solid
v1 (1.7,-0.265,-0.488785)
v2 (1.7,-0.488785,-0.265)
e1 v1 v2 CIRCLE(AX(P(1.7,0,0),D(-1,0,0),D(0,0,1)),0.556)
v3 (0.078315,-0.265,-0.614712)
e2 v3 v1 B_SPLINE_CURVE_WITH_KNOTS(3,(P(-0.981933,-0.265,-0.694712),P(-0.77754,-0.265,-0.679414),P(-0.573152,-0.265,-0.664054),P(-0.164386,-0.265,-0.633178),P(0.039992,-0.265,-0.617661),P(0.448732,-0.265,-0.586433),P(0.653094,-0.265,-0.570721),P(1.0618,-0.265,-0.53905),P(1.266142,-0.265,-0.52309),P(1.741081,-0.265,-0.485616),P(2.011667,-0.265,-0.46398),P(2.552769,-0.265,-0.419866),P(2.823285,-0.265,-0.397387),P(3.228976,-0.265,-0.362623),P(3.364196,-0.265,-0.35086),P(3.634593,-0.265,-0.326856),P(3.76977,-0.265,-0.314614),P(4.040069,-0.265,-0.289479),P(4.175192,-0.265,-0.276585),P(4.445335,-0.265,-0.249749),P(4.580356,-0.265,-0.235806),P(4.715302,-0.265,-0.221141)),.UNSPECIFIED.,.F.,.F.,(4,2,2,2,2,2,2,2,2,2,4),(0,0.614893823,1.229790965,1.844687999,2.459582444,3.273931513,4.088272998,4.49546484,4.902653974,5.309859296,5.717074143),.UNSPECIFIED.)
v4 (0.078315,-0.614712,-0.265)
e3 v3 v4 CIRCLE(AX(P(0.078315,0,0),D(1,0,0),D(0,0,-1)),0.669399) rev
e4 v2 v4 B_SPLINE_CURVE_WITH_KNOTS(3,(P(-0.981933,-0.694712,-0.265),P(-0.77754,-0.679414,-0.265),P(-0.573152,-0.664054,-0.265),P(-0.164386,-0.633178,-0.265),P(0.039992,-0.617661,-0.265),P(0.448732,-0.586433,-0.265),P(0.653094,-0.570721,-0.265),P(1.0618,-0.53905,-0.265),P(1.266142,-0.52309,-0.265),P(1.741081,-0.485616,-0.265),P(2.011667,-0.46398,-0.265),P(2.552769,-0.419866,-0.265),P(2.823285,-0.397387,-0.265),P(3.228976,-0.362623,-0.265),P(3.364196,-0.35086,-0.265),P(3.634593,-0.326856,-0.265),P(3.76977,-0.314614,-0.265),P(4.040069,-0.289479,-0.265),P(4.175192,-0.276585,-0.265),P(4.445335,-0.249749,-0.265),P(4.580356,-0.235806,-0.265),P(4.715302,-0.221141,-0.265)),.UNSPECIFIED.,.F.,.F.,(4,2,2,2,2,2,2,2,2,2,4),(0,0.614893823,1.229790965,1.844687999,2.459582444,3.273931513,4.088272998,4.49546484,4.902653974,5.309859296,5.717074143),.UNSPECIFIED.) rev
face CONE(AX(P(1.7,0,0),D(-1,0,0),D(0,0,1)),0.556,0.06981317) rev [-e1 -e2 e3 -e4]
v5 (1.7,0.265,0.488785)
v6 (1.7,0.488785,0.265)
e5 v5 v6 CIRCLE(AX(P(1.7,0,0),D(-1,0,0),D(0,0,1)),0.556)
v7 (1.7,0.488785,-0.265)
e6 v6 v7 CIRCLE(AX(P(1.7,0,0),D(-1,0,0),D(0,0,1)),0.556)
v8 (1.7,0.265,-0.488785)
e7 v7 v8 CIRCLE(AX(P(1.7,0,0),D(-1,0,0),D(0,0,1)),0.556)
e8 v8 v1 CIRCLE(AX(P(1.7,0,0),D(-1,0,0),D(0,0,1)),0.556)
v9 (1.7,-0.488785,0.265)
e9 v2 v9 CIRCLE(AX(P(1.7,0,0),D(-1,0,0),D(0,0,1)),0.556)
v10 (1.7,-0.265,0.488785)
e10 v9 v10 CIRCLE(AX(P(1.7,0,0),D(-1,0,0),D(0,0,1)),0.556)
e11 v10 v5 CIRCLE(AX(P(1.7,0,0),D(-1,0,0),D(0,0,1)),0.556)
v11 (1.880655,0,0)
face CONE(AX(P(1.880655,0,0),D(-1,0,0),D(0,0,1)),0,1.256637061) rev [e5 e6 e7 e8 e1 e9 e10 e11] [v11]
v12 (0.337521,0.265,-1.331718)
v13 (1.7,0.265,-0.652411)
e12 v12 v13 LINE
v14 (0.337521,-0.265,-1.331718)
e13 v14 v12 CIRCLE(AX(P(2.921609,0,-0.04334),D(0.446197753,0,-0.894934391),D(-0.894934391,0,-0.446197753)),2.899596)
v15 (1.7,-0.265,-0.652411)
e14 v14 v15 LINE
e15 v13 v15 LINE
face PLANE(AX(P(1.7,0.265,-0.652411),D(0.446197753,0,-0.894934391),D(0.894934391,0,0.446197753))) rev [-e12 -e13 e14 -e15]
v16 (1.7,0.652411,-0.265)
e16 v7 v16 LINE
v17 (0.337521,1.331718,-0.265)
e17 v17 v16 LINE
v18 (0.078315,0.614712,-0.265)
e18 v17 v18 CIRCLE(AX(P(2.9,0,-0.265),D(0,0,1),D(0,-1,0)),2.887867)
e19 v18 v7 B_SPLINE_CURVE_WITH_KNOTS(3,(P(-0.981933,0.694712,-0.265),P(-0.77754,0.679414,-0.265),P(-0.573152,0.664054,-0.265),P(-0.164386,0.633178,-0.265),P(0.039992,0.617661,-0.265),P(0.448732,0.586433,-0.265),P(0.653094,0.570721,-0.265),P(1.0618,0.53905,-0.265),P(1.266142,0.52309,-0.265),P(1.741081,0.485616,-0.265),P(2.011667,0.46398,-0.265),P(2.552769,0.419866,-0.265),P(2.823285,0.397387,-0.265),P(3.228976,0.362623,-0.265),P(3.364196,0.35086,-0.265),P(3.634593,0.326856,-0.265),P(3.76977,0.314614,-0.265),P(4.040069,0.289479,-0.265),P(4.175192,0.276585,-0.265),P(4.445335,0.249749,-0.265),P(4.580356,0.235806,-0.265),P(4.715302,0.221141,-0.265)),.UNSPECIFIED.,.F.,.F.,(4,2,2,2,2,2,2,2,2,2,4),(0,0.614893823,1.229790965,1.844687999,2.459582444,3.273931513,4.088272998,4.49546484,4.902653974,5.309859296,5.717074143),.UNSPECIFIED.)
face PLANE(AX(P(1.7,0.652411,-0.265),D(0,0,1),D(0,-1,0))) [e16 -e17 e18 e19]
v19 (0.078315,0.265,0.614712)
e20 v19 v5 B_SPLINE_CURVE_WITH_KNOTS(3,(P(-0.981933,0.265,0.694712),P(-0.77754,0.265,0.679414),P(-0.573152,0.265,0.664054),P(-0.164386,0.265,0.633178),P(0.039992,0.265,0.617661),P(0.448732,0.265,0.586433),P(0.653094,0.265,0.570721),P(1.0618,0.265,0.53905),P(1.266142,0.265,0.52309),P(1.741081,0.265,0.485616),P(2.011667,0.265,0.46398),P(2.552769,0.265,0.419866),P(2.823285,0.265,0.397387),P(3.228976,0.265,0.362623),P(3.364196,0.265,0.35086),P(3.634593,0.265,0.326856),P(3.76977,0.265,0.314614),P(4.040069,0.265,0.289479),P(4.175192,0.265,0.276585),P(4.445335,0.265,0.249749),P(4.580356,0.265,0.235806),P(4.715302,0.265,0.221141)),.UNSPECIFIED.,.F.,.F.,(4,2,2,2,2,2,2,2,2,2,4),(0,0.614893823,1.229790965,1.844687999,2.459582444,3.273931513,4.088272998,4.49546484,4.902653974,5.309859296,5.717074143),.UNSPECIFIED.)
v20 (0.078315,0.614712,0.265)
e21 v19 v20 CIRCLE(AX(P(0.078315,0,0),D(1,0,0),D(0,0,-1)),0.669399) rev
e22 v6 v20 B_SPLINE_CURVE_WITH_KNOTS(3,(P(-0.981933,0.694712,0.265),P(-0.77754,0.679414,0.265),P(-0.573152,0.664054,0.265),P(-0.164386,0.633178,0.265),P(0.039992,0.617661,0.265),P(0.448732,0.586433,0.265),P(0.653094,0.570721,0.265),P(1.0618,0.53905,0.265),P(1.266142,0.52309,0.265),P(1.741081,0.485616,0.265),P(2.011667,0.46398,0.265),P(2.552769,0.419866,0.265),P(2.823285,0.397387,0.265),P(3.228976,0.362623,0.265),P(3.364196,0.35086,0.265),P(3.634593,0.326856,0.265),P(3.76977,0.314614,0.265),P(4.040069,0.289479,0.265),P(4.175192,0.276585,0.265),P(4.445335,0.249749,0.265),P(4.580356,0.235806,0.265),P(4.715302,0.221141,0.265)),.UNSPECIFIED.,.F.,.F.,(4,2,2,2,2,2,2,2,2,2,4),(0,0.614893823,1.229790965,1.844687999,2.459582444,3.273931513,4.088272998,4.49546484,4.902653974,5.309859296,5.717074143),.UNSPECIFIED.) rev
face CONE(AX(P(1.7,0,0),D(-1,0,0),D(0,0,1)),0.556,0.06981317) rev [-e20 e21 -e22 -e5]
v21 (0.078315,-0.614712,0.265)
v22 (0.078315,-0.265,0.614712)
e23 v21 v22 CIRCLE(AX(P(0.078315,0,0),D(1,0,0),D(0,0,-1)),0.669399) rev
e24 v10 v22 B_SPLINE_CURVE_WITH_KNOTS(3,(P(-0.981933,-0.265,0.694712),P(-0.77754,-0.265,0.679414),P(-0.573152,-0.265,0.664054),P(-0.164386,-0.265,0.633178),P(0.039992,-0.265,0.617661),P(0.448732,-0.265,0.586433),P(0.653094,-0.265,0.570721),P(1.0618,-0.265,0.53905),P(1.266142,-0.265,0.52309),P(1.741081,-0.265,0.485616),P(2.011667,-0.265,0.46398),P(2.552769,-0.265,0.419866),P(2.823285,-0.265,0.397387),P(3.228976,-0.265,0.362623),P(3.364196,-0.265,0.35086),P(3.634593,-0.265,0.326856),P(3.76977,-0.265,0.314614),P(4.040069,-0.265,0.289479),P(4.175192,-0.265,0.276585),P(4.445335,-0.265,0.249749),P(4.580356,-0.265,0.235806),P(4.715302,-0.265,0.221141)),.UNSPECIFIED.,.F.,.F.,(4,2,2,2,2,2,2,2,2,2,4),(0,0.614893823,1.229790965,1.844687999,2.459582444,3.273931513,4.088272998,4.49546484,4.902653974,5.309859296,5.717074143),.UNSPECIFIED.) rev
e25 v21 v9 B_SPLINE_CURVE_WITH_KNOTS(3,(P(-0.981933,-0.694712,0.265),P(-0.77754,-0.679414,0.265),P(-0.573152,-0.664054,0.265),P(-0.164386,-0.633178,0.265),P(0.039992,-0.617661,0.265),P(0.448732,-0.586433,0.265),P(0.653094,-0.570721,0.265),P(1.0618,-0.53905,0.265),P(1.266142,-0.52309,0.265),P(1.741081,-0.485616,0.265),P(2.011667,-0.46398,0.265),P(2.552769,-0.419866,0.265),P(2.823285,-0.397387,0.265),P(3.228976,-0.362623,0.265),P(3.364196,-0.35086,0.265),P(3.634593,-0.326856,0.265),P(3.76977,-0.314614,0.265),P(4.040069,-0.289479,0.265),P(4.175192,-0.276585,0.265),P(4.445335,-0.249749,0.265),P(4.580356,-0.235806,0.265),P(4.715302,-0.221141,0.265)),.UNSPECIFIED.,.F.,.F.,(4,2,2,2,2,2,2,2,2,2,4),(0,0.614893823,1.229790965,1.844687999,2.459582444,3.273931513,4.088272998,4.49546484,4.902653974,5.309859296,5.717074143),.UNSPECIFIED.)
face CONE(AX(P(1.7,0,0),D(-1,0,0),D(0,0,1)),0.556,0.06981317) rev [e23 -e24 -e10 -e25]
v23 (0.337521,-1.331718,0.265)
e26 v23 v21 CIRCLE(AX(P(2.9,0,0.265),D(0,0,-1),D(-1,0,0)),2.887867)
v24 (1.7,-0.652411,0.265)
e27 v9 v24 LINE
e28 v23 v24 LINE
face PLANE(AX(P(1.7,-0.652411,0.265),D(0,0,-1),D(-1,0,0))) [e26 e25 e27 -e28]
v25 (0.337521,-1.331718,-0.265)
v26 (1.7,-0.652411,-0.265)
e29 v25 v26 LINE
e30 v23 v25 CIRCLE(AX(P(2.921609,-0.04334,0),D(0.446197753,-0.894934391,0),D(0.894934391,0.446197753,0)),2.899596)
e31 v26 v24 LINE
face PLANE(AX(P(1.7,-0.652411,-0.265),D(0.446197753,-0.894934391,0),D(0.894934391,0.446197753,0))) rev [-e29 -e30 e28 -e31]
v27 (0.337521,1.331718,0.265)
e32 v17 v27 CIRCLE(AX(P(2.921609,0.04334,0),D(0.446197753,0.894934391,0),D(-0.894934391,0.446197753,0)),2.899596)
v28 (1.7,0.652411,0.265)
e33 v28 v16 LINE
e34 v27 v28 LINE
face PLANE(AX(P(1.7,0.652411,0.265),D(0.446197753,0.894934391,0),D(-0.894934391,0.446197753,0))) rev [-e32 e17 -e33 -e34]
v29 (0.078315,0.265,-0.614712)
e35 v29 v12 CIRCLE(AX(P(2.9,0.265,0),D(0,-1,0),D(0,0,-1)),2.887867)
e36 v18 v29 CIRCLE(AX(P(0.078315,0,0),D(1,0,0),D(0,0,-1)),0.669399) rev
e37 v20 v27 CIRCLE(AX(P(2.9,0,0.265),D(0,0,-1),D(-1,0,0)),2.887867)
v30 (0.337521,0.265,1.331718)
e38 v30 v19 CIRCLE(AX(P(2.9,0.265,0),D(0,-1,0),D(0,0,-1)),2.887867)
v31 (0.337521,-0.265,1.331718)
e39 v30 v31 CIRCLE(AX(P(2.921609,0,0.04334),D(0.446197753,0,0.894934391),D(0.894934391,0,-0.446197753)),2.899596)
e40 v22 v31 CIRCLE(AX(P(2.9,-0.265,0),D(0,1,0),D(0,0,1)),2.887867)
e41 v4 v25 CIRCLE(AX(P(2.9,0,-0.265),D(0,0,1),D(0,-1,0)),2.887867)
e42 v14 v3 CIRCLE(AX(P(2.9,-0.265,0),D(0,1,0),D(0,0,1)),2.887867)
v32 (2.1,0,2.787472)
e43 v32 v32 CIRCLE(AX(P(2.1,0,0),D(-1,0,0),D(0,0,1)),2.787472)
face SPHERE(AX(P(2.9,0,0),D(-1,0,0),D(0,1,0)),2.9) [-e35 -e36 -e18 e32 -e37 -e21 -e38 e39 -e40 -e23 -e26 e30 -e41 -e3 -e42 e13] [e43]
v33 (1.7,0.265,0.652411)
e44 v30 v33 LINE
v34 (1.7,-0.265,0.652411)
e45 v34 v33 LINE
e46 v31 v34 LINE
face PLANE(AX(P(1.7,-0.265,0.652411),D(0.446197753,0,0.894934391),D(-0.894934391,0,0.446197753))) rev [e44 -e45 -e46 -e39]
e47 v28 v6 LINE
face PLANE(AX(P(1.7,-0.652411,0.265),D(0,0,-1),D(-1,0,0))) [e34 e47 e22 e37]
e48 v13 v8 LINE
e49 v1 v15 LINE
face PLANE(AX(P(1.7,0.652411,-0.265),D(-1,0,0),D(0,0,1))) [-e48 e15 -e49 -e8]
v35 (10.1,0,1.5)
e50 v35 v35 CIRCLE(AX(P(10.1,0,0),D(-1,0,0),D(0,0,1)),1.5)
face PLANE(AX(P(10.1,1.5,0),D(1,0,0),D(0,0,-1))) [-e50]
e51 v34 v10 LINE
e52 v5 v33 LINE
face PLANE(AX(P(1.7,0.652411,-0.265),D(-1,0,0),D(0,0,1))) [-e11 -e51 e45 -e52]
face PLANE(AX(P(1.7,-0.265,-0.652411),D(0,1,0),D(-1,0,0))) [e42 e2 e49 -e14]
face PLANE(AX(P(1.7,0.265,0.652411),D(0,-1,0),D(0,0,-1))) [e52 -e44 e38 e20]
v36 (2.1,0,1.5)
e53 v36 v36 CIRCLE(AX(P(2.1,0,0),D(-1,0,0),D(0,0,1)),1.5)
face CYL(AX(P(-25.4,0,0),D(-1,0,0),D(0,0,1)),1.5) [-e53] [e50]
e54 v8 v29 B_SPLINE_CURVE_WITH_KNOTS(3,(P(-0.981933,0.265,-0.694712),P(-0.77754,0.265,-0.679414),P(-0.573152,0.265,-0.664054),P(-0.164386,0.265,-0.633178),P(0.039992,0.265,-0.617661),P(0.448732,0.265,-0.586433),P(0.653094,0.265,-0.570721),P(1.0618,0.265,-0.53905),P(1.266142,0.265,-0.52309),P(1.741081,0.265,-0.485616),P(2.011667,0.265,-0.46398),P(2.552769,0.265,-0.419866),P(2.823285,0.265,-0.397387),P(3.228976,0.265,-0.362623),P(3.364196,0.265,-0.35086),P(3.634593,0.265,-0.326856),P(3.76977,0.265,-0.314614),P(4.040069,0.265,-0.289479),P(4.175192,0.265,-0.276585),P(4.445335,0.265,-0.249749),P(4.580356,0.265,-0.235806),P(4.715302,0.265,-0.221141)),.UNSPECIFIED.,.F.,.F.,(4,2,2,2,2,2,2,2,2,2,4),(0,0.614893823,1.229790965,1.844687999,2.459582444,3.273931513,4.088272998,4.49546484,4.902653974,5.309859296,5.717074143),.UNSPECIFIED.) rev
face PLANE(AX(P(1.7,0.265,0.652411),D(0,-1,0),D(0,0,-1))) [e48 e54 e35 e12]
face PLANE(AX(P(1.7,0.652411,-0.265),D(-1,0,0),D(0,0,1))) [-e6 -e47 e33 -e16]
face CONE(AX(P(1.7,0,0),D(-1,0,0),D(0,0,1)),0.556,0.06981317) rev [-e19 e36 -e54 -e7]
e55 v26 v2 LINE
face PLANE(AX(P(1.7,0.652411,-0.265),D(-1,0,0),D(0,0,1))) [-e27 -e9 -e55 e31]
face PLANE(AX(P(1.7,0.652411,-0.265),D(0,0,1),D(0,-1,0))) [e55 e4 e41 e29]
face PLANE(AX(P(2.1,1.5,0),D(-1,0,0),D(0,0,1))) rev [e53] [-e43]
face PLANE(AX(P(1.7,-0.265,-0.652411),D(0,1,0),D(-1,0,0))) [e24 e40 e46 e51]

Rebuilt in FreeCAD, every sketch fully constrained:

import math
import FreeCAD as App
import Part
import Sketcher
from FreeCAD import Vector
Q = App.Units.Quantity


def add_polygon(sketch, points):
    """Adds a closed chain of lines whose ends are joined by coincident constraints."""
    first, n = sketch.GeometryCount, len(points)
    for a, b in zip(points, points[1:] + points[:1]):
        sketch.addGeometry(Part.LineSegment(App.Vector(*a, 0), App.Vector(*b, 0)), False)
    for i in range(n):
        sketch.addConstraint(Sketcher.Constraint("Coincident", first + i, 2, first + (i + 1) % n, 1))

doc = App.newDocument("Part")
body = doc.addObject("PartDesign::Body", "Body")

# Sketch on XY plane
sketch1 = body.newObject("Sketcher::SketchObject", "Sketch")
sketch1.AttachmentSupport = (doc.getObject("XY_Plane"), [""])
sketch1.MapMode = "FlatFace"
sketch1.addGeometry([
    Part.LineSegment(Vector(2.1, 1.5, 0), Vector(2.1, 2.8, 0)),  # 0
    Part.ArcOfCircle(Part.Circle(Vector(2.9, 0, 0), Vector(0, 0, 1), 2.9), math.radians(106), math.radians(180)),  # 1
    Part.LineSegment(Vector(0, 0, 0), Vector(10.1, 0, 0)),  # 2
    Part.LineSegment(Vector(10.1, 0, 0), Vector(10.1, 1.5, 0)),  # 3
    Part.LineSegment(Vector(10.1, 1.5, 0), Vector(2.1, 1.5, 0)),  # 4
], False)
sketch1.addConstraint([
    Sketcher.Constraint("Coincident", 0, 2, 1, 1),
    Sketcher.Constraint("Coincident", 1, 2, 2, 1),
    Sketcher.Constraint("Coincident", 2, 2, 3, 1),
    Sketcher.Constraint("Coincident", 3, 2, 4, 1),
    Sketcher.Constraint("Coincident", 4, 2, 0, 1),
    Sketcher.Constraint("Vertical", 0),
    Sketcher.Constraint("Horizontal", 2),
    Sketcher.Constraint("Vertical", 3),
    Sketcher.Constraint("Horizontal", 4),
    Sketcher.Constraint("Coincident", 1, 2, -1, 1),
    Sketcher.Constraint("PointOnObject", 1, 3, -1),
    Sketcher.Constraint("Radius", 1, Q("2.9 mm")),
    Sketcher.Constraint("DistanceX", 4, 2, 4, 1, Q("8 mm")),
    Sketcher.Constraint("DistanceX", 2, 1, 2, 2, Q("10.1 mm")),
    Sketcher.Constraint("DistanceY", 3, 1, 3, 2, Q("1.5 mm")),
])
revolution = body.newObject("PartDesign::Revolution", "Revolution")
revolution.Profile = sketch1
revolution.ReferenceAxis = (sketch1, ["H_Axis"])
revolution.Angle = 360

# Sketch on YZ plane
sketch2 = body.newObject("Sketcher::SketchObject", "Sketch001")
sketch2.AttachmentSupport = (doc.getObject("YZ_Plane"), [""])
sketch2.MapMode = "FlatFace"
add_polygon(sketch2, [(1.5, 0.3), (-1.5, 0.3), (-1.5, -0.3), (1.5, -0.3)])  # lines 0-3
sketch2.addConstraint([
    Sketcher.Constraint("Horizontal", 0),
    Sketcher.Constraint("Vertical", 1),
    Sketcher.Constraint("Horizontal", 2),
    Sketcher.Constraint("Vertical", 3),
    Sketcher.Constraint("Symmetric", 0, 2, 2, 2, -1, 1),
    Sketcher.Constraint("DistanceX", 0, 2, 0, 1, Q("3 mm")),
    Sketcher.Constraint("DistanceY", 1, 2, 1, 1, Q("0.53 mm")),
])

# Sketch on YZ plane
sketch3 = body.newObject("Sketcher::SketchObject", "Sketch002")
sketch3.AttachmentSupport = (doc.getObject("YZ_Plane"), [""])
sketch3.MapMode = "FlatFace"
sketch3.AttachmentOffset = App.Placement(Vector(0, 0, 1.7), App.Rotation())
add_polygon(sketch3, [(0.7, 0.3), (-0.7, 0.3), (-0.7, -0.3), (0.7, -0.3)])  # lines 0-3
sketch3.addConstraint([
    Sketcher.Constraint("Horizontal", 0),
    Sketcher.Constraint("Vertical", 1),
    Sketcher.Constraint("Horizontal", 2),
    Sketcher.Constraint("Vertical", 3),
    Sketcher.Constraint("Symmetric", 0, 2, 2, 2, -1, 1),
    Sketcher.Constraint("DistanceY", 1, 2, 1, 1, Q("0.53 mm")),
    Sketcher.Constraint("DistanceX", 0, 2, 0, 1, Q("1.304823 mm")),
])

subtractiveloft = body.newObject("PartDesign::SubtractiveLoft", "SubtractiveLoft")
subtractiveloft.Profile = sketch2
subtractiveloft.Sections = [sketch3]
doc.recompute()

polarpattern = body.newObject("PartDesign::PolarPattern", "PolarPattern")
polarpattern.Originals = [subtractiveloft]
polarpattern.Axis = (doc.getObject("X_Axis"), [""])
polarpattern.Angle = 90
polarpattern.Occurrences = 2
body.Tip = polarpattern

# Sketch on XY plane
sketch4 = body.newObject("Sketcher::SketchObject", "Sketch003")
sketch4.AttachmentSupport = (doc.getObject("XY_Plane"), [""])
sketch4.MapMode = "FlatFace"
add_polygon(sketch4, [(0, 0.7), (0, 0), (1.9, 0), (1.7, 0.6)])  # lines 0-3
sketch4.addConstraint([
    Sketcher.Constraint("Vertical", 0),
    Sketcher.Constraint("Horizontal", 1),
    Sketcher.Constraint("Coincident", 0, 2, -1, 1),
    Sketcher.Constraint("Angle", 2, Q("108 deg")),
    Sketcher.Constraint("Angle", 3, Q("176 deg")),
    Sketcher.Constraint("DistanceX", -1, 1, 2, 2, Q("1.7 mm")),
    Sketcher.Constraint("DistanceY", -1, 1, 2, 2, Q("0.556 mm")),
])
groove = body.newObject("PartDesign::Groove", "Groove")
groove.Profile = sketch4
groove.ReferenceAxis = (sketch4, ["H_Axis"])
groove.Angle = 360

doc.recompute()
